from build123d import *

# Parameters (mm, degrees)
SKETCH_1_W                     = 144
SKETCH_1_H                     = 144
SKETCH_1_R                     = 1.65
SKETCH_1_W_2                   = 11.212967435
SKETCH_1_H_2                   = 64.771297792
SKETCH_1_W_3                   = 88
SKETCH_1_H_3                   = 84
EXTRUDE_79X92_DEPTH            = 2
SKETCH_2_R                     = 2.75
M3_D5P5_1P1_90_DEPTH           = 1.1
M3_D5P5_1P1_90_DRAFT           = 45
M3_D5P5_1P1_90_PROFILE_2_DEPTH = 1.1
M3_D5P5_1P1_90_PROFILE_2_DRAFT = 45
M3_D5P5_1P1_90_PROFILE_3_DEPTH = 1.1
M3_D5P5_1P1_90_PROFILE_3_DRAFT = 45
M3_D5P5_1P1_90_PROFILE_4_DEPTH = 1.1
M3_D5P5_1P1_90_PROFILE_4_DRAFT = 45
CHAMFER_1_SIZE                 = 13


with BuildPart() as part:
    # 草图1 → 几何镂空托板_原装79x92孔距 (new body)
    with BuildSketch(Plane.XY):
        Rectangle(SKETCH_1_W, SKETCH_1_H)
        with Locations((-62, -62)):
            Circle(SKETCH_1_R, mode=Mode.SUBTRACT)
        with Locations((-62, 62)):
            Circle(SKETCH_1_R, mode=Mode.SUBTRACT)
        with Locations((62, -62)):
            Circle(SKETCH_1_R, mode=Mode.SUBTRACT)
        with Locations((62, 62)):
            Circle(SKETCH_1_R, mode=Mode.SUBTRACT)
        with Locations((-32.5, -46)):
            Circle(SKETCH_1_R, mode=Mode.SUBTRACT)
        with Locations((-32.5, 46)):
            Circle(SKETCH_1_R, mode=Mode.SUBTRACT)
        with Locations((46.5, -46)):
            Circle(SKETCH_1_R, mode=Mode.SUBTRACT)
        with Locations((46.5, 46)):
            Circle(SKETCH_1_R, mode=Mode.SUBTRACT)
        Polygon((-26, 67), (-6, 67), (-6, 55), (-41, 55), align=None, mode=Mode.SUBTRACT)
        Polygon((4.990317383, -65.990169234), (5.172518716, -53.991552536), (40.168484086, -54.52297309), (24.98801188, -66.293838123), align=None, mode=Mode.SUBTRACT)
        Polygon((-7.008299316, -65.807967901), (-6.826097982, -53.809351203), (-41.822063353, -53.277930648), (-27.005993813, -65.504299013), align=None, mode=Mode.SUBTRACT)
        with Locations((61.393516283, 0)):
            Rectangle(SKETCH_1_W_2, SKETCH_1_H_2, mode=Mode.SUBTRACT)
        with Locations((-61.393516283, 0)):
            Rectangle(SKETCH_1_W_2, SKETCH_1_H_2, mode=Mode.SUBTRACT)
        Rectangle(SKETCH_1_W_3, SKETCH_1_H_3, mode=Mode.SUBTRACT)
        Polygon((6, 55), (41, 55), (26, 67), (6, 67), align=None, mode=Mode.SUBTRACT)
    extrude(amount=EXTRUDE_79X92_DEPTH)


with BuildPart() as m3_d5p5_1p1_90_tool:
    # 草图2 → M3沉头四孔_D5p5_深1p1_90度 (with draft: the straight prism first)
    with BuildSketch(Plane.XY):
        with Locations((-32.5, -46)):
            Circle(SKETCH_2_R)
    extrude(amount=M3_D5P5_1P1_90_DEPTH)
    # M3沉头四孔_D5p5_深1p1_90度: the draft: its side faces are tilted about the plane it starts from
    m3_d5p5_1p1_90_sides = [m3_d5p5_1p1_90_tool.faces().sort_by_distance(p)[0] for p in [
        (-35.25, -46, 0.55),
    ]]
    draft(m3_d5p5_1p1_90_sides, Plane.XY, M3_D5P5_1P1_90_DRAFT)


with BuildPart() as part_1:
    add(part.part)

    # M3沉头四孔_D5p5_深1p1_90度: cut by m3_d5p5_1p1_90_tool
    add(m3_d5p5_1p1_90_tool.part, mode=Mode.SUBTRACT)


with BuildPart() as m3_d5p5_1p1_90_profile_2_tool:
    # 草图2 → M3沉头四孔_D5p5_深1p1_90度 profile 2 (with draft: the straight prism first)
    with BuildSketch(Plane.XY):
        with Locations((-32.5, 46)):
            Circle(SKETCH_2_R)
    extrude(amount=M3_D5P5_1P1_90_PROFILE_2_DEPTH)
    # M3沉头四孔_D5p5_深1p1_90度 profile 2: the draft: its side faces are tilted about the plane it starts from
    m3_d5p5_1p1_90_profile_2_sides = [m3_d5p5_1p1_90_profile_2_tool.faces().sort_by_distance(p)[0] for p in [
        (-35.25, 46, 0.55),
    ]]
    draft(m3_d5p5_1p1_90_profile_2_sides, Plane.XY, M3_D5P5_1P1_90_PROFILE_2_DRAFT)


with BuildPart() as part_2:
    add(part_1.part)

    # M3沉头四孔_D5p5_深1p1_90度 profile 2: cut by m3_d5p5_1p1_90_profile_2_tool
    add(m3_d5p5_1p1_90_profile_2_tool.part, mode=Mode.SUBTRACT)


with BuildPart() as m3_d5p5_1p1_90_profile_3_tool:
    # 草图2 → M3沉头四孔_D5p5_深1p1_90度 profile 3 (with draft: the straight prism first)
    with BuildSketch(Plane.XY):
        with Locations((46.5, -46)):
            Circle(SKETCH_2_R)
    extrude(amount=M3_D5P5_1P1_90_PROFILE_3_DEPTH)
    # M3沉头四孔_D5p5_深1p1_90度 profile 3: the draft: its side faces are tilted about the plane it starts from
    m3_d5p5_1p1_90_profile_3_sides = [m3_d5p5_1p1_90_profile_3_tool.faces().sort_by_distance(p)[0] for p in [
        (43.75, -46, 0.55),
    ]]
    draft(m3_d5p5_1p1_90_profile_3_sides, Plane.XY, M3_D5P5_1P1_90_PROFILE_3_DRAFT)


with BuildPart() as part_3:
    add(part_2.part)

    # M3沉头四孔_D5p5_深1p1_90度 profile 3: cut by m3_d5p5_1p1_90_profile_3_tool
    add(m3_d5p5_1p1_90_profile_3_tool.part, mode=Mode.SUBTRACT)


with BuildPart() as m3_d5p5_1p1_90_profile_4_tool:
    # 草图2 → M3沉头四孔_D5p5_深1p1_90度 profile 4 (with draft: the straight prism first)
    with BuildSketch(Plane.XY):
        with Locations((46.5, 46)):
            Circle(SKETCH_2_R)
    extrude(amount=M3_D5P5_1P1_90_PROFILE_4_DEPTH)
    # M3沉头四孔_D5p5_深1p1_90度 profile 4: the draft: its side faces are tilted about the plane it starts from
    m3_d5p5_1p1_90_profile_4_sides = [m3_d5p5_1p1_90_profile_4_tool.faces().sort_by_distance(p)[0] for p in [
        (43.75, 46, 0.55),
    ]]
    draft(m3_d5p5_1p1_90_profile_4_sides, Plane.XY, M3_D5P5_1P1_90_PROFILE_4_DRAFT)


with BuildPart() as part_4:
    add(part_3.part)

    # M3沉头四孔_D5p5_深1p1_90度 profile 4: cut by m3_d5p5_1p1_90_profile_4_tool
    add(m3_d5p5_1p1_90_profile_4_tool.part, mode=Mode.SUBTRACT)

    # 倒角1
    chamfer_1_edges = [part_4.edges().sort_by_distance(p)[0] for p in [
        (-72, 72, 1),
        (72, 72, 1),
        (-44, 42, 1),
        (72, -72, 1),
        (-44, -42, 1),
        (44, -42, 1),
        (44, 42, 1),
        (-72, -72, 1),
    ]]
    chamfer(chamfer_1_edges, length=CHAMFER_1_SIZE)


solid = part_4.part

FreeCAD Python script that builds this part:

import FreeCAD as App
import Part
import Sketcher

V = App.Vector
Q = App.Units.Quantity


def edges_at(feature, points):
    """Names of the edges that pass closest to the given points."""
    edges = feature.Shape.Edges
    near = lambda p: min(range(len(edges)), key=lambda i: edges[i].distToShape(Part.Vertex(*p))[0])
    return sorted({f"Edge{near(p) + 1}" for p in points})


def faces_at(feature, points):
    """Names of the faces that lie closest to the given points."""
    faces = feature.Shape.Faces
    near = lambda p: min(range(len(faces)), key=lambda i: faces[i].distToShape(Part.Vertex(*p))[0])
    return sorted({f"Face{near(p) + 1}" for p in points})

doc = App.newDocument("Part")
params = doc.addObject("Spreadsheet::Sheet", "Params")
for row, (alias, value) in enumerate([
    ("sketch1_diameter", "3.3 mm"),
    ("sketch1_width", "144 mm"),
    ("sketch1_width2", "88 mm"),
    ("sketch1_width3", "20 mm"),
    ("sketch1_width4", "35 mm"),
    ("pad1_length", "2 mm"),
    ("sketch2_diameter", "5.5 mm"),
    ("pad2_length", "1.1 mm"),
    ("draft_angle", "45 deg"),
    ("sketch3_diameter", "5.5 mm"),
    ("pad3_length", "1.1 mm"),
    ("draft2_angle", "45 deg"),
    ("sketch4_diameter", "5.5 mm"),
    ("pad4_length", "1.1 mm"),
    ("draft3_angle", "45 deg"),
    ("sketch5_diameter", "5.5 mm"),
    ("pad5_length", "1.1 mm"),
    ("draft4_angle", "45 deg"),
    ("chamfer_size", "13 mm"),
], start=1):
    params.set(f"A{row}", alias)
    params.set(f"B{row}", "=" + value)
    params.setAlias(f"B{row}", alias)

body = doc.addObject("PartDesign::Body", "Body")

# Sketch on XY plane
sketch1 = body.newObject("Sketcher::SketchObject", "Sketch")
sketch1.AttachmentSupport = (doc.getObject("XY_Plane"), [""])
sketch1.MapMode = "FlatFace"
sketch1.addGeometry(Part.LineSegment(V(-72, 72, 0), V(-72, -72, 0)), False)
sketch1.addGeometry(Part.LineSegment(V(-72, -72, 0), V(72, -72, 0)), False)
sketch1.addGeometry(Part.LineSegment(V(72, -72, 0), V(72, 72, 0)), False)
sketch1.addGeometry(Part.LineSegment(V(72, 72, 0), V(-72, 72, 0)), False)
sketch1.addGeometry(Part.Circle(V(-62, -62, 0), V(0, 0, 1), 1.65), False)
sketch1.addGeometry(Part.LineSegment(V(-6.826098, -53.809351, 0), V(-7.008299, -65.807968, 0)), False)
sketch1.addGeometry(Part.LineSegment(V(-7.008299, -65.807968, 0), V(-27.005994, -65.504299, 0)), False)
sketch1.addGeometry(Part.LineSegment(V(-27.005994, -65.504299, 0), V(-41.822063, -53.277931, 0)), False)
sketch1.addGeometry(Part.LineSegment(V(-41.822063, -53.277931, 0), V(-6.826098, -53.809351, 0)), False)
sketch1.addGeometry(Part.Circle(V(-32.5, -46, 0), V(0, 0, 1), 1.65), False)
sketch1.addGeometry(Part.LineSegment(V(-55.787033, -32.385649, 0), V(-67, -32.385649, 0)), False)
sketch1.addGeometry(Part.LineSegment(V(-67, -32.385649, 0), V(-67, 32.385649, 0)), False)
sketch1.addGeometry(Part.LineSegment(V(-67, 32.385649, 0), V(-55.787033, 32.385649, 0)), False)
sketch1.addGeometry(Part.LineSegment(V(-55.787033, 32.385649, 0), V(-55.787033, -32.385649, 0)), False)
sketch1.addGeometry(Part.LineSegment(V(24.988012, -66.293838, 0), V(4.990317, -65.990169, 0)), False)
sketch1.addGeometry(Part.LineSegment(V(4.990317, -65.990169, 0), V(5.172519, -53.991553, 0)), False)
sketch1.addGeometry(Part.LineSegment(V(5.172519, -53.991553, 0), V(40.168484, -54.522973, 0)), False)
sketch1.addGeometry(Part.LineSegment(V(40.168484, -54.522973, 0), V(24.988012, -66.293838, 0)), False)
sketch1.addGeometry(Part.Circle(V(62, -62, 0), V(0, 0, 1), 1.65), False)
sketch1.addGeometry(Part.Circle(V(46.5, -46, 0), V(0, 0, 1), 1.65), False)
sketch1.addGeometry(Part.LineSegment(V(44, -42, 0), V(-44, -42, 0)), False)
sketch1.addGeometry(Part.LineSegment(V(-44, -42, 0), V(-44, 42, 0)), False)
sketch1.addGeometry(Part.LineSegment(V(-44, 42, 0), V(44, 42, 0)), False)
sketch1.addGeometry(Part.LineSegment(V(44, 42, 0), V(44, -42, 0)), False)
sketch1.addGeometry(Part.LineSegment(V(67, -32.385649, 0), V(55.787033, -32.385649, 0)), False)
sketch1.addGeometry(Part.LineSegment(V(55.787033, -32.385649, 0), V(55.787033, 32.385649, 0)), False)
sketch1.addGeometry(Part.LineSegment(V(55.787033, 32.385649, 0), V(67, 32.385649, 0)), False)
sketch1.addGeometry(Part.LineSegment(V(67, 32.385649, 0), V(67, -32.385649, 0)), False)
sketch1.addGeometry(Part.Circle(V(-62, 62, 0), V(0, 0, 1), 1.65), False)
sketch1.addGeometry(Part.Circle(V(-32.5, 46, 0), V(0, 0, 1), 1.65), False)
sketch1.addGeometry(Part.LineSegment(V(-41, 55, 0), V(-26, 67, 0)), False)
sketch1.addGeometry(Part.LineSegment(V(-26, 67, 0), V(-6, 67, 0)), False)
sketch1.addGeometry(Part.LineSegment(V(-6, 67, 0), V(-6, 55, 0)), False)
sketch1.addGeometry(Part.LineSegment(V(-6, 55, 0), V(-41, 55, 0)), False)
sketch1.addGeometry(Part.LineSegment(V(41, 55, 0), V(6, 55, 0)), False)
sketch1.addGeometry(Part.LineSegment(V(6, 55, 0), V(6, 67, 0)), False)
sketch1.addGeometry(Part.LineSegment(V(6, 67, 0), V(26, 67, 0)), False)
sketch1.addGeometry(Part.LineSegment(V(26, 67, 0), V(41, 55, 0)), False)
sketch1.addGeometry(Part.Circle(V(46.5, 46, 0), V(0, 0, 1), 1.65), False)
sketch1.addGeometry(Part.Circle(V(62, 62, 0), V(0, 0, 1), 1.65), False)
sketch1.addConstraint(Sketcher.Constraint("Coincident", 0, 2, 1, 1))
sketch1.addConstraint(Sketcher.Constraint("Coincident", 1, 2, 2, 1))
sketch1.addConstraint(Sketcher.Constraint("Coincident", 2, 2, 3, 1))
sketch1.addConstraint(Sketcher.Constraint("Coincident", 3, 2, 0, 1))
sketch1.addConstraint(Sketcher.Constraint("Coincident", 5, 2, 6, 1))
sketch1.addConstraint(Sketcher.Constraint("Coincident", 6, 2, 7, 1))
sketch1.addConstraint(Sketcher.Constraint("Coincident", 7, 2, 8, 1))
sketch1.addConstraint(Sketcher.Constraint("Coincident", 8, 2, 5, 1))
sketch1.addConstraint(Sketcher.Constraint("Coincident", 10, 2, 11, 1))
sketch1.addConstraint(Sketcher.Constraint("Coincident", 11, 2, 12, 1))
sketch1.addConstraint(Sketcher.Constraint("Coincident", 12, 2, 13, 1))
sketch1.addConstraint(Sketcher.Constraint("Coincident", 13, 2, 10, 1))
sketch1.addConstraint(Sketcher.Constraint("Coincident", 14, 2, 15, 1))
sketch1.addConstraint(Sketcher.Constraint("Coincident", 15, 2, 16, 1))
sketch1.addConstraint(Sketcher.Constraint("Coincident", 16, 2, 17, 1))
sketch1.addConstraint(Sketcher.Constraint("Coincident", 17, 2, 14, 1))
sketch1.addConstraint(Sketcher.Constraint("Coincident", 20, 2, 21, 1))
sketch1.addConstraint(Sketcher.Constraint("Coincident", 21, 2, 22, 1))
sketch1.addConstraint(Sketcher.Constraint("Coincident", 22, 2, 23, 1))
sketch1.addConstraint(Sketcher.Constraint("Coincident", 23, 2, 20, 1))
sketch1.addConstraint(Sketcher.Constraint("Coincident", 24, 2, 25, 1))
sketch1.addConstraint(Sketcher.Constraint("Coincident", 25, 2, 26, 1))
sketch1.addConstraint(Sketcher.Constraint("Coincident", 26, 2, 27, 1))
sketch1.addConstraint(Sketcher.Constraint("Coincident", 27, 2, 24, 1))
sketch1.addConstraint(Sketcher.Constraint("Coincident", 30, 2, 31, 1))
sketch1.addConstraint(Sketcher.Constraint("Coincident", 31, 2, 32, 1))
sketch1.addConstraint(Sketcher.Constraint("Coincident", 32, 2, 33, 1))
sketch1.addConstraint(Sketcher.Constraint("Coincident", 33, 2, 30, 1))
sketch1.addConstraint(Sketcher.Constraint("Coincident", 34, 2, 35, 1))
sketch1.addConstraint(Sketcher.Constraint("Coincident", 35, 2, 36, 1))
sketch1.addConstraint(Sketcher.Constraint("Coincident", 36, 2, 37, 1))
sketch1.addConstraint(Sketcher.Constraint("Coincident", 37, 2, 34, 1))
sketch1.addConstraint(Sketcher.Constraint("Vertical", 0))
sketch1.addConstraint(Sketcher.Constraint("Horizontal", 1))
sketch1.addConstraint(Sketcher.Constraint("Vertical", 2))
sketch1.addConstraint(Sketcher.Constraint("Horizontal", 3))
sketch1.addConstraint(Sketcher.Constraint("Horizontal", 10))
sketch1.addConstraint(Sketcher.Constraint("Vertical", 11))
sketch1.addConstraint(Sketcher.Constraint("Horizontal", 12))
sketch1.addConstraint(Sketcher.Constraint("Vertical", 13))
sketch1.addConstraint(Sketcher.Constraint("Horizontal", 20))
sketch1.addConstraint(Sketcher.Constraint("Vertical", 21))
sketch1.addConstraint(Sketcher.Constraint("Horizontal", 22))
sketch1.addConstraint(Sketcher.Constraint("Vertical", 23))
sketch1.addConstraint(Sketcher.Constraint("Horizontal", 24))
sketch1.addConstraint(Sketcher.Constraint("Vertical", 25))
sketch1.addConstraint(Sketcher.Constraint("Horizontal", 26))
sketch1.addConstraint(Sketcher.Constraint("Vertical", 27))
sketch1.addConstraint(Sketcher.Constraint("Horizontal", 31))
sketch1.addConstraint(Sketcher.Constraint("Vertical", 32))
sketch1.addConstraint(Sketcher.Constraint("Horizontal", 33))
sketch1.addConstraint(Sketcher.Constraint("Horizontal", 34))
sketch1.addConstraint(Sketcher.Constraint("Vertical", 35))
sketch1.addConstraint(Sketcher.Constraint("Horizontal", 36))
sketch1.addConstraint(Sketcher.Constraint("Equal", 4, 9))
sketch1.addConstraint(Sketcher.Constraint("Equal", 9, 18))
sketch1.addConstraint(Sketcher.Constraint("Equal", 18, 19))
sketch1.addConstraint(Sketcher.Constraint("Equal", 19, 28))
sketch1.addConstraint(Sketcher.Constraint("Equal", 28, 29))
sketch1.addConstraint(Sketcher.Constraint("Equal", 29, 38))
sketch1.addConstraint(Sketcher.Constraint("Equal", 38, 39))
sketch1.addConstraint(Sketcher.Constraint("Symmetric", 18, 3, 28, 3, -1, 1))
sketch1.addConstraint(Sketcher.Constraint("Symmetric", 4, 3, 39, 3, -1, 1))
sketch1.addConstraint(Sketcher.Constraint("Symmetric", 0, 2, 2, 2, -1, 1))
sketch1.addConstraint(Sketcher.Constraint("Symmetric", 20, 2, 22, 2, -1, 1))
sketch1.addConstraint(Sketcher.Constraint("Symmetric", 12, 2, 24, 2, -1, 1))
sketch1.addConstraint(Sketcher.Constraint("Symmetric", 10, 2, 26, 2, -1, 1))
sketch1.addConstraint(Sketcher.Constraint("Symmetric", 4, 3, 18, 3, -2))
sketch1.addConstraint(Sketcher.Constraint("Symmetric", 32, 2, 34, 2, -2))
sketch1.addConstraint(Sketcher.Constraint("Symmetric", 30, 2, 36, 2, -2))
sketch1.addConstraint(Sketcher.Constraint("Symmetric", 9, 3, 29, 3, -1))
sketch1.addConstraint(Sketcher.Constraint("Symmetric", 19, 3, 38, 3, -1))
sketch1.addConstraint(Sketcher.Constraint("Perpendicular", 5, 6))
sketch1.addConstraint(Sketcher.Constraint("Parallel", 6, 8))
sketch1.addConstraint(Sketcher.Constraint("Parallel", 8, 14))
sketch1.addConstraint(Sketcher.Constraint("Perpendicular", 14, 15))
sketch1.addConstraint(Sketcher.Constraint("Perpendicular", 15, 16))
sketch1.addConstraint(Sketcher.Constraint("Horizontal", 9, 3, 19, 3))
sketch1.addConstraint(Sketcher.Constraint("Horizontal", 13, 2, 24, 2))
sketch1.addConstraint(Sketcher.Constraint("Equal", 33, 34))
sketch1.addConstraint(Sketcher.Constraint("Equal", 3, 0))
sketch1.addConstraint(Sketcher.Constraint("Equal", 6, 14))
sketch1.addConstraint(Sketcher.Constraint("Equal", 5, 15))
sketch1.addConstraint(Sketcher.Constraint("Equal", 8, 16))
sketch1.addConstraint(Sketcher.Constraint("Equal", 17, 30))
sketch1.addConstraint(Sketcher.Constraint("Diameter", 4, 3.3))
sketch1.addConstraint(Sketcher.Constraint("DistanceX", 1, 1, 1, 2, 144.0))
sketch1.addConstraint(Sketcher.Constraint("DistanceX", 20, 2, 20, 1, 88.0))
sketch1.addConstraint(Sketcher.Constraint("DistanceX", 31, 1, 31, 2, 20.0))
sketch1.addConstraint(Sketcher.Constraint("DistanceX", 33, 2, 33, 1, 35.0))
sketch1.addConstraint(Sketcher.Constraint("DistanceY", 21, 1, 21, 2, 84.0))
sketch1.addConstraint(Sketcher.Constraint("DistanceY", 32, 2, 32, 1, 12.0))
sketch1.addConstraint(Sketcher.Constraint("Distance", 5, 12.0))
sketch1.addConstraint(Sketcher.Constraint("Distance", 6, 20.0))
sketch1.addConstraint(Sketcher.Constraint("DistanceX", 4, 3, -1, 1, 62.0))
sketch1.addConstraint(Sketcher.Constraint("DistanceY", 4, 3, -1, 1, 62.0))
sketch1.addConstraint(Sketcher.Constraint("DistanceY", 9, 3, -1, 1, 46.0))
sketch1.addConstraint(Sketcher.Constraint("DistanceX", 10, 2, -1, 1, 67.0))
sketch1.addConstraint(Sketcher.Constraint("DistanceX", 30, 2, -1, 1, 26.0))
sketch1.addConstraint(Sketcher.Constraint("DistanceY", -1, 1, 30, 2, 67.0))
sketch1.addConstraint(Sketcher.Constraint("DistanceX", 9, 3, 19, 3, 79.0))
sketch1.addConstraint(Sketcher.Constraint("DistanceX", 9, 3, -1, 1, 32.5))
sketch1.addConstraint(Sketcher.Constraint("Angle", 5, Q("-90.869981 deg")))
sketch1.addConstraint(Sketcher.Constraint("DistanceX", 5, 2, -1, 1, 7.008299))
sketch1.addConstraint(Sketcher.Constraint("DistanceY", 6, 2, -1, 1, 65.504299))
sketch1.addConstraint(Sketcher.Constraint("DistanceY", 14, 2, 5, 2, 0.182201))
sketch1.addConstraint(Sketcher.Constraint("DistanceX", 10, 2, 10, 1, 11.212967))
sketch1.addConstraint(Sketcher.Constraint("DistanceY", 11, 1, 11, 2, 64.771298))
sketch1.addConstraint(Sketcher.Constraint("DistanceX", -1, 1, 15, 2, 5.172519))
sketch1.setExpression("Constraints[85]", "Params.sketch1_diameter")
sketch1.setExpression("Constraints[86]", "Params.sketch1_width")
sketch1.setExpression("Constraints[87]", "Params.sketch1_width2")
sketch1.setExpression("Constraints[88]", "Params.sketch1_width3")
sketch1.setExpression("Constraints[89]", "Params.sketch1_width4")
pad1 = body.newObject("PartDesign::Pad", "Pad")
pad1.Profile = sketch1
pad1.setExpression("Length", "Params.pad1_length")
body2 = doc.addObject("PartDesign::Body", "Body001")

# Sketch on XY plane
sketch2 = body2.newObject("Sketcher::SketchObject", "Sketch001")
sketch2.AttachmentSupport = (doc.getObject("XY_Plane001"), [""])
sketch2.MapMode = "FlatFace"
sketch2.addGeometry(Part.Circle(V(-32.5, -46, 0), V(0, 0, 1), 2.75), False)
sketch2.addConstraint(Sketcher.Constraint("Diameter", 0, 5.5))
sketch2.addConstraint(Sketcher.Constraint("DistanceY", 0, 3, -1, 1, 46.0))
sketch2.addConstraint(Sketcher.Constraint("DistanceX", 0, 3, -1, 1, 32.5))
sketch2.setExpression("Constraints[0]", "Params.sketch2_diameter")
pad2 = body2.newObject("PartDesign::Pad", "Pad001")
pad2.Profile = sketch2
pad2.setExpression("Length", "Params.pad2_length")
doc.recompute()

draft = body2.newObject("PartDesign::Draft", "Draft")
draft.Base = (pad2, faces_at(pad2, [(-35.25, -46, 0.55)]))
draft.NeutralPlane = (doc.getObject("XY_Plane001"), [""])
draft.setExpression("Angle", "Params.draft_angle")
draft.Reversed = False
doc.recompute()

boolean = body.newObject("PartDesign::Boolean", "Boolean")
boolean.Type = "Cut"
boolean.addObjects([body2])
body3 = doc.addObject("PartDesign::Body", "Body002")

# Sketch on XY plane
sketch3 = body3.newObject("Sketcher::SketchObject", "Sketch002")
sketch3.AttachmentSupport = (doc.getObject("XY_Plane002"), [""])
sketch3.MapMode = "FlatFace"
sketch3.addGeometry(Part.Circle(V(-32.5, 46, 0), V(0, 0, 1), 2.75), False)
sketch3.addConstraint(Sketcher.Constraint("Diameter", 0, 5.5))
sketch3.addConstraint(Sketcher.Constraint("DistanceY", -1, 1, 0, 3, 46.0))
sketch3.addConstraint(Sketcher.Constraint("DistanceX", 0, 3, -1, 1, 32.5))
sketch3.setExpression("Constraints[0]", "Params.sketch3_diameter")
pad3 = body3.newObject("PartDesign::Pad", "Pad002")
pad3.Profile = sketch3
pad3.setExpression("Length", "Params.pad3_length")
doc.recompute()

draft2 = body3.newObject("PartDesign::Draft", "Draft001")
draft2.Base = (pad3, faces_at(pad3, [(-35.25, 46, 0.55)]))
draft2.NeutralPlane = (doc.getObject("XY_Plane002"), [""])
draft2.setExpression("Angle", "Params.draft2_angle")
draft2.Reversed = False
doc.recompute()

boolean2 = body.newObject("PartDesign::Boolean", "Boolean001")
boolean2.Type = "Cut"
boolean2.addObjects([body3])
body4 = doc.addObject("PartDesign::Body", "Body003")

# Sketch on XY plane
sketch4 = body4.newObject("Sketcher::SketchObject", "Sketch003")
sketch4.AttachmentSupport = (doc.getObject("XY_Plane003"), [""])
sketch4.MapMode = "FlatFace"
sketch4.addGeometry(Part.Circle(V(46.5, -46, 0), V(0, 0, 1), 2.75), False)
sketch4.addConstraint(Sketcher.Constraint("Diameter", 0, 5.5))
sketch4.addConstraint(Sketcher.Constraint("DistanceY", 0, 3, -1, 1, 46.0))
sketch4.addConstraint(Sketcher.Constraint("DistanceX", -1, 1, 0, 3, 46.5))
sketch4.setExpression("Constraints[0]", "Params.sketch4_diameter")
pad4 = body4.newObject("PartDesign::Pad", "Pad003")
pad4.Profile = sketch4
pad4.setExpression("Length", "Params.pad4_length")
doc.recompute()

draft3 = body4.newObject("PartDesign::Draft", "Draft002")
draft3.Base = (pad4, faces_at(pad4, [(43.75, -46, 0.55)]))
draft3.NeutralPlane = (doc.getObject("XY_Plane003"), [""])
draft3.setExpression("Angle", "Params.draft3_angle")
draft3.Reversed = False
doc.recompute()

boolean3 = body.newObject("PartDesign::Boolean", "Boolean002")
boolean3.Type = "Cut"
boolean3.addObjects([body4])
body5 = doc.addObject("PartDesign::Body", "Body004")

# Sketch on XY plane
sketch5 = body5.newObject("Sketcher::SketchObject", "Sketch004")
sketch5.AttachmentSupport = (doc.getObject("XY_Plane004"), [""])
sketch5.MapMode = "FlatFace"
sketch5.addGeometry(Part.Circle(V(46.5, 46, 0), V(0, 0, 1), 2.75), False)
sketch5.addConstraint(Sketcher.Constraint("Diameter", 0, 5.5))
sketch5.addConstraint(Sketcher.Constraint("DistanceY", -1, 1, 0, 3, 46.0))
sketch5.addConstraint(Sketcher.Constraint("DistanceX", -1, 1, 0, 3, 46.5))
sketch5.setExpression("Constraints[0]", "Params.sketch5_diameter")
pad5 = body5.newObject("PartDesign::Pad", "Pad004")
pad5.Profile = sketch5
pad5.setExpression("Length", "Params.pad5_length")
doc.recompute()

draft4 = body5.newObject("PartDesign::Draft", "Draft003")
draft4.Base = (pad5, faces_at(pad5, [(43.75, 46, 0.55)]))
draft4.NeutralPlane = (doc.getObject("XY_Plane004"), [""])
draft4.setExpression("Angle", "Params.draft4_angle")
draft4.Reversed = False
doc.recompute()

boolean4 = body.newObject("PartDesign::Boolean", "Boolean003")
boolean4.Type = "Cut"
boolean4.addObjects([body5])
doc.recompute()

chamfer = body.newObject("PartDesign::Chamfer", "Chamfer")
chamfer.Base = (boolean4, edges_at(boolean4, [
    (-72, 72, 1),
    (72, 72, 1),
    (-44, 42, 1),
    (72, -72, 1),
    (-44, -42, 1),
    (44, -42, 1),
    (44, 42, 1),
    (-72, -72, 1),
]))
chamfer.setExpression("Size", "Params.chamfer_size")

doc.recompute()
